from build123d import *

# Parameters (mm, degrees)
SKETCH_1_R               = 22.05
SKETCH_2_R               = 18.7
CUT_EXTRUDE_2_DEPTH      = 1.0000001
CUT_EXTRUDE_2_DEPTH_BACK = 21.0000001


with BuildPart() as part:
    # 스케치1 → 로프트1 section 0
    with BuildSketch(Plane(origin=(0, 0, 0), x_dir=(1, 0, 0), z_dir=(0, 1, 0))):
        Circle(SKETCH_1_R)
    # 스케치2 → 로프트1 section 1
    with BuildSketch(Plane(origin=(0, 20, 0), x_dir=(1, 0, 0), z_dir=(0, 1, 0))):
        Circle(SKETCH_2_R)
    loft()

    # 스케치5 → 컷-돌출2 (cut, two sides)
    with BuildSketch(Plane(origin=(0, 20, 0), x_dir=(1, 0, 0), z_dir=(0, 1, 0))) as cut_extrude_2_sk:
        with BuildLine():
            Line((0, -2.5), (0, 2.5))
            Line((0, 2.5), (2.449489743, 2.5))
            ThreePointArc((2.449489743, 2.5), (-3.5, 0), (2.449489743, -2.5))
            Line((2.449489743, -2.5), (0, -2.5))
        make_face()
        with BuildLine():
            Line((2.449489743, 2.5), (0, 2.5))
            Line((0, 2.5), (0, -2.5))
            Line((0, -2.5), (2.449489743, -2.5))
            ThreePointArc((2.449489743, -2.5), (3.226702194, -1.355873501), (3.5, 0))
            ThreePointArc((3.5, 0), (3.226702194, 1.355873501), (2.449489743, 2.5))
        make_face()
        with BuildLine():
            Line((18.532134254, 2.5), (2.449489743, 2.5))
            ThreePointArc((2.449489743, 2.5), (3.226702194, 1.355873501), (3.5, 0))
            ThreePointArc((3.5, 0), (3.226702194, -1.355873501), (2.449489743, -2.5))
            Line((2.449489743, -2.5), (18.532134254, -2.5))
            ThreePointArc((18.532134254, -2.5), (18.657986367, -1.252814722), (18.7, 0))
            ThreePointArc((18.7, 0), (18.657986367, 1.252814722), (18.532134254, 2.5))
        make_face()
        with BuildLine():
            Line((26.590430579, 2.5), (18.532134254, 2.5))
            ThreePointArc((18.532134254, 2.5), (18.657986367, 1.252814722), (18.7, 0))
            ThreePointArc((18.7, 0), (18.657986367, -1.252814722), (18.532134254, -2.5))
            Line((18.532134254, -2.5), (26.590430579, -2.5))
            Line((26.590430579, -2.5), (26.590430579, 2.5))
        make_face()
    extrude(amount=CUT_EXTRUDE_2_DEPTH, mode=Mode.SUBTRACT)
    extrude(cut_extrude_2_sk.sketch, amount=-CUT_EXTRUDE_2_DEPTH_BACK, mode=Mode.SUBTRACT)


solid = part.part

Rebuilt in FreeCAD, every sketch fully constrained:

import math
import FreeCAD as App
import Part
import Sketcher
from FreeCAD import Vector
Q = App.Units.Quantity

doc = App.newDocument("Part")
body = doc.addObject("PartDesign::Body", "Body")

# Sketch on XZ plane
sketch1 = body.newObject("Sketcher::SketchObject", "Sketch")
sketch1.AttachmentSupport = (doc.getObject("XZ_Plane"), [""])
sketch1.MapMode = "FlatFace"
sketch1.addGeometry(Part.Circle(Vector(0, 0, 0), Vector(0, 0, 1), 22), False)
sketch1.addConstraint(Sketcher.Constraint("Coincident", 0, 3, -1, 1))
sketch1.addConstraint(Sketcher.Constraint("Diameter", 0, Q("44.1 mm")))

# Sketch on XZ plane
sketch2 = body.newObject("Sketcher::SketchObject", "Sketch001")
sketch2.AttachmentSupport = (doc.getObject("XZ_Plane"), [""])
sketch2.MapMode = "FlatFace"
sketch2.AttachmentOffset = App.Placement(Vector(0, 0, -20), App.Rotation())
sketch2.addGeometry(Part.Circle(Vector(0, 0, 0), Vector(0, 0, 1), 19), False)
sketch2.addConstraint(Sketcher.Constraint("Coincident", 0, 3, -1, 1))
sketch2.addConstraint(Sketcher.Constraint("Diameter", 0, Q("37.4 mm")))

additiveloft = body.newObject("PartDesign::AdditiveLoft", "AdditiveLoft")
additiveloft.Profile = sketch1
additiveloft.Sections = [sketch2]

# Sketch on XZ plane
sketch3 = body.newObject("Sketcher::SketchObject", "Sketch002")
sketch3.AttachmentSupport = (doc.getObject("XZ_Plane"), [""])
sketch3.MapMode = "FlatFace"
sketch3.AttachmentOffset = App.Placement(Vector(0, 0, -20), App.Rotation())
sketch3.addGeometry(Part.ArcOfCircle(Part.Circle(Vector(0, 0, 0), Vector(0, 0, 1), 3.5), math.radians(46), math.radians(314)), False)
sketch3.addGeometry(Part.LineSegment(Vector(2.4, 2.5, 0), Vector(26.6, 2.5, 0)), False)
sketch3.addGeometry(Part.LineSegment(Vector(26.6, 2.5, 0), Vector(26.6, -2.5, 0)), False)
sketch3.addGeometry(Part.LineSegment(Vector(26.6, -2.5, 0), Vector(2.4, -2.5, 0)), False)
sketch3.addConstraint(Sketcher.Constraint("Coincident", 0, 1, 1, 1))
sketch3.addConstraint(Sketcher.Constraint("Coincident", 1, 2, 2, 1))
sketch3.addConstraint(Sketcher.Constraint("Coincident", 2, 2, 3, 1))
sketch3.addConstraint(Sketcher.Constraint("Coincident", 3, 2, 0, 2))
sketch3.addConstraint(Sketcher.Constraint("Horizontal", 1))
sketch3.addConstraint(Sketcher.Constraint("Vertical", 2))
sketch3.addConstraint(Sketcher.Constraint("Horizontal", 3))
sketch3.addConstraint(Sketcher.Constraint("Coincident", 0, 3, -1, 1))
sketch3.addConstraint(Sketcher.Constraint("Vertical", 0, 1, 3, 2))
sketch3.addConstraint(Sketcher.Constraint("Radius", 0, Q("3.5 mm")))
sketch3.addConstraint(Sketcher.Constraint("DistanceY", 2, 2, 2, 1, Q("5 mm")))
sketch3.addConstraint(Sketcher.Constraint("DistanceX", 1, 1, 1, 2, Q("24.140941 mm")))
pocket1 = body.newObject("PartDesign::Pocket", "Pocket")
pocket1.Profile = sketch3
pocket1.Type = "ThroughAll"
pocket1.Midplane = True

doc.recompute()
